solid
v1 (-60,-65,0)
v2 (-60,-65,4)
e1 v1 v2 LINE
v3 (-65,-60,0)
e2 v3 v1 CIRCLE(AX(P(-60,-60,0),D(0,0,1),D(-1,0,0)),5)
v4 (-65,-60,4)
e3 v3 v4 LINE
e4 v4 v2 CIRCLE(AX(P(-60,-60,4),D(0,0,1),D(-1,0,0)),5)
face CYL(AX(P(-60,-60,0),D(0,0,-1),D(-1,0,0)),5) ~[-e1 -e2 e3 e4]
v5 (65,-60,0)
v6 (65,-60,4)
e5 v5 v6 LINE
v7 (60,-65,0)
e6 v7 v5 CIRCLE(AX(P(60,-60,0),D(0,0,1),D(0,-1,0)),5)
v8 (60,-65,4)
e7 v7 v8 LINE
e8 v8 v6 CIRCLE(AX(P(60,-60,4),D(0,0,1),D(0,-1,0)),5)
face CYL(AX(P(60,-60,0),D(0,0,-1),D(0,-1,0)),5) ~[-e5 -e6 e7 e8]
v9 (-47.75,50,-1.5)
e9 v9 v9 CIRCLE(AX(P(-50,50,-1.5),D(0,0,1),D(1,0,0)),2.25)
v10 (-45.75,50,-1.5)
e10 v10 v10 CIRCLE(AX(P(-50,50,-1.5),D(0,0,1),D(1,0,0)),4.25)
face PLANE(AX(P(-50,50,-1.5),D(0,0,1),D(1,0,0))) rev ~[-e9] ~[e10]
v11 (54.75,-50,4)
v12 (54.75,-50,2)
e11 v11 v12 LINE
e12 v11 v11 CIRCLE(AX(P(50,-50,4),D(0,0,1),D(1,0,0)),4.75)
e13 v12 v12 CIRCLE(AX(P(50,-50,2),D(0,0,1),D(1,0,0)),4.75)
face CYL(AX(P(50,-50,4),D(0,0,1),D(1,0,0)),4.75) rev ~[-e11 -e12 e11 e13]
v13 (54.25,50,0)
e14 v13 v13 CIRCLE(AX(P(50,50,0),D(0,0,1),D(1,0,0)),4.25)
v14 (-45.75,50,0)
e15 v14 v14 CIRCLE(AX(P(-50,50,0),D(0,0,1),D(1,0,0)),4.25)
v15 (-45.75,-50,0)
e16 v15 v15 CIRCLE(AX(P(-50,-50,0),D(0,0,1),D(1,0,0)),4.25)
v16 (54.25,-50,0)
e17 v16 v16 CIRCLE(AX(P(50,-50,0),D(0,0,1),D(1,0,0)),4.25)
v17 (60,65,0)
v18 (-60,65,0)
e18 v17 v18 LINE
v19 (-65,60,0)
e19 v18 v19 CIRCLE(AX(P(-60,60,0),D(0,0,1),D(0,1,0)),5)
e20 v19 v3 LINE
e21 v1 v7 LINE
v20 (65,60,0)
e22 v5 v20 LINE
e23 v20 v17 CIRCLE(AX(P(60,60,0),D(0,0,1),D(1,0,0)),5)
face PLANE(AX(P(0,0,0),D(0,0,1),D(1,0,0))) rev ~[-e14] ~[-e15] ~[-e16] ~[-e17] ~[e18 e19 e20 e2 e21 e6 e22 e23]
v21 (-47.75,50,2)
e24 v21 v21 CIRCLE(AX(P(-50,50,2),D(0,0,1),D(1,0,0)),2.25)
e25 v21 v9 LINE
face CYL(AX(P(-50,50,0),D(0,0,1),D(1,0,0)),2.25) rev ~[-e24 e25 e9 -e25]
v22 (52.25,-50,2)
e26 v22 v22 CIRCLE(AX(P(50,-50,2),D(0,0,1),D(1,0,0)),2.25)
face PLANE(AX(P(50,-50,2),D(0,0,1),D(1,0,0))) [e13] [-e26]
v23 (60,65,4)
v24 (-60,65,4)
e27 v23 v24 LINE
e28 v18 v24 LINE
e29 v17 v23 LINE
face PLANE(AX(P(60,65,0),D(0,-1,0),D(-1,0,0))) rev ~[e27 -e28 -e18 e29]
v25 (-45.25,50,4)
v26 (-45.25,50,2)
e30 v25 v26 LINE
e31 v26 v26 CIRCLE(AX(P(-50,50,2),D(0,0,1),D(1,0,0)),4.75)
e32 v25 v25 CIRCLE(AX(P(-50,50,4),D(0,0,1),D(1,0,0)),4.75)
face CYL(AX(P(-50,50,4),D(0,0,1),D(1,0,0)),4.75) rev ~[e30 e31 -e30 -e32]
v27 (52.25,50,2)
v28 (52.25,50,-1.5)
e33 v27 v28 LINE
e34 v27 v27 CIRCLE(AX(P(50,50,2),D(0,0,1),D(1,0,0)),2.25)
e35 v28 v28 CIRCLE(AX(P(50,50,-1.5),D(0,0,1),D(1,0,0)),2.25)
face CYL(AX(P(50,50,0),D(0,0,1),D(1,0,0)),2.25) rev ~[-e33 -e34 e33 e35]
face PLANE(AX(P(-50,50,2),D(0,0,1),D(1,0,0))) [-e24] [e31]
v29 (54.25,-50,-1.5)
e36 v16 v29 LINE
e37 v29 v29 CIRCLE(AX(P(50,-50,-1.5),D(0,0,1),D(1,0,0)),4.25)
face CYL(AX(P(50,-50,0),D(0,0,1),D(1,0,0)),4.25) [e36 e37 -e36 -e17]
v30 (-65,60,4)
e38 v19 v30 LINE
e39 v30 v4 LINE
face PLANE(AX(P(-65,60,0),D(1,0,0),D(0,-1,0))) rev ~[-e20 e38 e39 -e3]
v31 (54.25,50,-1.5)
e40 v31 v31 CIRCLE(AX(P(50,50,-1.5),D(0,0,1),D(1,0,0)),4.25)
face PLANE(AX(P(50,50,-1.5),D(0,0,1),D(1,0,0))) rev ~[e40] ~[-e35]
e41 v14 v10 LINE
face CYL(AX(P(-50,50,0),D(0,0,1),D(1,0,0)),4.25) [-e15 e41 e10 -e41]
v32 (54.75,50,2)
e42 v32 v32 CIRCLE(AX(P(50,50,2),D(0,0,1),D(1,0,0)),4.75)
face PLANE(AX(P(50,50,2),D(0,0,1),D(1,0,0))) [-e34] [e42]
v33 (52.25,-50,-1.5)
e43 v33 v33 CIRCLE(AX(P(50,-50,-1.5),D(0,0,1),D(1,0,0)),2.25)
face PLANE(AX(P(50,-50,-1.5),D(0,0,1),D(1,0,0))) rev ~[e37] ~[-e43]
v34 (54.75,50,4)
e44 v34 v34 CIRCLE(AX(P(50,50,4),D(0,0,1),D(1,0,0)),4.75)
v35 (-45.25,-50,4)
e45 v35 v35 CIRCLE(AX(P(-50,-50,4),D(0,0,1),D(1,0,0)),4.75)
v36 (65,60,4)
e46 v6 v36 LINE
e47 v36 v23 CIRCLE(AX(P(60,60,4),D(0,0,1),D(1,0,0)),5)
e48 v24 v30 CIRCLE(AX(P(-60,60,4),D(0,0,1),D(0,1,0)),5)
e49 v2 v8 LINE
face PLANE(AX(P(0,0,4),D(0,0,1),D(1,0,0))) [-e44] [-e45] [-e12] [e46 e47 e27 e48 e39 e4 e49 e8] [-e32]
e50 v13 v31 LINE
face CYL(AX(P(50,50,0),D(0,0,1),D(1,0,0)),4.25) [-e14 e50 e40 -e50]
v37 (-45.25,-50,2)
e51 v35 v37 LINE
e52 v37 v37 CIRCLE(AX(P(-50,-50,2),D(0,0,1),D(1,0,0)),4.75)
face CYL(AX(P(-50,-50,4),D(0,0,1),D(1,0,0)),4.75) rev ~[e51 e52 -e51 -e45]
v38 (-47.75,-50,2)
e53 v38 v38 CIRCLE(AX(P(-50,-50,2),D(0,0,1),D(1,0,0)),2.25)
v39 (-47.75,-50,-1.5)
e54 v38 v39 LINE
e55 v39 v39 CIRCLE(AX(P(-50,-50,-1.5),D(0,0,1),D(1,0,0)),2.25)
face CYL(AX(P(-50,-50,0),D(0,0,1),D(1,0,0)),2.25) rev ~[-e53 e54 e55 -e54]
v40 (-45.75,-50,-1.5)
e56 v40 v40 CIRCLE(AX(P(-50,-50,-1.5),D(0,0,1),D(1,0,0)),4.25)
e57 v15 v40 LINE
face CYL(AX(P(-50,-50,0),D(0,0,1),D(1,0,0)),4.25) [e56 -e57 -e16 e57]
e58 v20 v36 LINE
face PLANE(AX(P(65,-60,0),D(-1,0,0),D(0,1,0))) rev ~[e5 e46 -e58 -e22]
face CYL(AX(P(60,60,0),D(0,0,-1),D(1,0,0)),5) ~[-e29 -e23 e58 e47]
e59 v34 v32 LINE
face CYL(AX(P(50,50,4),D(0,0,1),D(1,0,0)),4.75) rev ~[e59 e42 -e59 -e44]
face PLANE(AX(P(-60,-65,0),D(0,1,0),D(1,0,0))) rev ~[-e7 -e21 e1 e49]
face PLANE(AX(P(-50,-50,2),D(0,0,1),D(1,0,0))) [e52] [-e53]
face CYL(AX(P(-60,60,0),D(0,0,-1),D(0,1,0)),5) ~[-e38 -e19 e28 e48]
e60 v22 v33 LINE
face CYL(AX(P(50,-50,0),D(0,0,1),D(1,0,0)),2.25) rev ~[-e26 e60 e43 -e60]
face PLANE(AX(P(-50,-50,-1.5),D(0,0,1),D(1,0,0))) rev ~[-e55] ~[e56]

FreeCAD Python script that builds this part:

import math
import FreeCAD as App
import Part
import Sketcher

doc = App.newDocument("Part")
body = doc.addObject("PartDesign::Body", "Body")

sketch1 = body.newObject("Sketcher::SketchObject", "Sketch")
sketch1.AttachmentSupport = (doc.getObject("XY_Plane"), [""])
sketch1.MapMode = "FlatFace"
sketch1.addGeometry([
    Part.ArcOfCircle(Part.Circle(App.Vector(-60, -60, 0), App.Vector(0, 0, 1), 5), math.radians(180), math.radians(270)),
    Part.LineSegment(App.Vector(-60, -65, 0), App.Vector(60, -65, 0)),
    Part.ArcOfCircle(Part.Circle(App.Vector(60, -60, 0), App.Vector(0, 0, 1), 5), math.radians(-90), math.radians(0)),
    Part.LineSegment(App.Vector(65, -60, 0), App.Vector(65, 60, 0)),
    Part.ArcOfCircle(Part.Circle(App.Vector(60, 60, 0), App.Vector(0, 0, 1), 5), math.radians(0), math.radians(90)),
    Part.LineSegment(App.Vector(60, 65, 0), App.Vector(-60, 65, 0)),
    Part.ArcOfCircle(Part.Circle(App.Vector(-60, 60, 0), App.Vector(0, 0, 1), 5), math.radians(90), math.radians(180)),
    Part.LineSegment(App.Vector(-65, 60, 0), App.Vector(-65, -60, 0)),
    Part.Circle(App.Vector(-50, -50, 0), App.Vector(0, 0, 1), 2.25),
    Part.Circle(App.Vector(50, -50, 0), App.Vector(0, 0, 1), 2.25),
    Part.Circle(App.Vector(-50, 50, 0), App.Vector(0, 0, 1), 2.25),
    Part.Circle(App.Vector(50, 50, 0), App.Vector(0, 0, 1), 2.25),
], False)
sketch1.addConstraint([
    Sketcher.Constraint("Tangent", 0, 2, 1, 1),
    Sketcher.Constraint("Tangent", 1, 2, 2, 1),
    Sketcher.Constraint("Tangent", 2, 2, 3, 1),
    Sketcher.Constraint("Tangent", 3, 2, 4, 1),
    Sketcher.Constraint("Tangent", 4, 2, 5, 1),
    Sketcher.Constraint("Tangent", 5, 2, 6, 1),
    Sketcher.Constraint("Tangent", 6, 2, 7, 1),
    Sketcher.Constraint("Tangent", 7, 2, 0, 1),
    Sketcher.Constraint("Horizontal", 1),
    Sketcher.Constraint("Vertical", 3),
    Sketcher.Constraint("Horizontal", 5),
    Sketcher.Constraint("Vertical", 7),
    Sketcher.Constraint("Equal", 0, 2),
    Sketcher.Constraint("Equal", 2, 4),
    Sketcher.Constraint("Equal", 4, 6),
    Sketcher.Constraint("Equal", 8, 9),
    Sketcher.Constraint("Equal", 9, 10),
    Sketcher.Constraint("Equal", 10, 11),
    Sketcher.Constraint("Symmetric", 0, 3, 4, 3, -1, 1),
    Sketcher.Constraint("Symmetric", 9, 3, 10, 3, -1, 1),
    Sketcher.Constraint("Symmetric", 8, 3, 11, 3, -1, 1),
    Sketcher.Constraint("Symmetric", 8, 3, 9, 3, -2),
    Sketcher.Constraint("Equal", 5, 3),
    Sketcher.Constraint("Radius", 0, 5.0),
    Sketcher.Constraint("Diameter", 8, 4.5),
    Sketcher.Constraint("DistanceX", 1, 1, 1, 2, 120.0),
    Sketcher.Constraint("DistanceX", 8, 3, -1, 1, 50.0),
    Sketcher.Constraint("DistanceY", 8, 3, -1, 1, 50.0),
])
pad1 = body.newObject("PartDesign::Pad", "Pad")
pad1.Profile = sketch1
pad1.Length = 4

sketch2 = body.newObject("Sketcher::SketchObject", "Sketch001")
sketch2.AttachmentSupport = (doc.getObject("XY_Plane"), [""])
sketch2.MapMode = "FlatFace"
sketch2.addGeometry([
    Part.Circle(App.Vector(50, -50, 0), App.Vector(0, 0, 1), 4.25),
    Part.Circle(App.Vector(50, -50, 0), App.Vector(0, 0, 1), 2.25),
    Part.Circle(App.Vector(50, 50, 0), App.Vector(0, 0, 1), 4.25),
    Part.Circle(App.Vector(50, 50, 0), App.Vector(0, 0, 1), 2.25),
    Part.Circle(App.Vector(-50, 50, 0), App.Vector(0, 0, 1), 4.25),
    Part.Circle(App.Vector(-50, 50, 0), App.Vector(0, 0, 1), 2.25),
    Part.Circle(App.Vector(-50, -50, 0), App.Vector(0, 0, 1), 4.25),
    Part.Circle(App.Vector(-50, -50, 0), App.Vector(0, 0, 1), 2.25),
], False)
sketch2.addConstraint([
    Sketcher.Constraint("Coincident", 1, 3, 0, 3),
    Sketcher.Constraint("Coincident", 3, 3, 2, 3),
    Sketcher.Constraint("Coincident", 5, 3, 4, 3),
    Sketcher.Constraint("Coincident", 7, 3, 6, 3),
    Sketcher.Constraint("Equal", 0, 2),
    Sketcher.Constraint("Equal", 1, 3),
    Sketcher.Constraint("Equal", 2, 4),
    Sketcher.Constraint("Equal", 3, 5),
    Sketcher.Constraint("Equal", 4, 6),
    Sketcher.Constraint("Equal", 5, 7),
    Sketcher.Constraint("Symmetric", 0, 3, 4, 3, -1, 1),
    Sketcher.Constraint("Symmetric", 2, 3, 6, 3, -1, 1),
    Sketcher.Constraint("Symmetric", 2, 3, 4, 3, -2),
    Sketcher.Constraint("Diameter", 0, 8.5),
    Sketcher.Constraint("Diameter", 1, 4.5),
    Sketcher.Constraint("DistanceX", -1, 1, 0, 3, 50.0),
    Sketcher.Constraint("DistanceY", 0, 3, -1, 1, 50.0),
])
pad2 = body.newObject("PartDesign::Pad", "Pad001")
pad2.Profile = sketch2
pad2.Length = 1.5
pad2.Reversed = True

sketch3 = body.newObject("Sketcher::SketchObject", "Sketch002")
sketch3.AttachmentSupport = (doc.getObject("XY_Plane"), [""])
sketch3.MapMode = "FlatFace"
sketch3.AttachmentOffset = App.Placement(App.Vector(0, 0, 4), App.Rotation())
sketch3.addGeometry([
    Part.Circle(App.Vector(-50, 50, 0), App.Vector(0, 0, 1), 4.75),
    Part.Circle(App.Vector(-50, 50, 0), App.Vector(0, 0, 1), 2.25),
    Part.Circle(App.Vector(50, 50, 0), App.Vector(0, 0, 1), 4.75),
    Part.Circle(App.Vector(50, 50, 0), App.Vector(0, 0, 1), 2.25),
    Part.Circle(App.Vector(50, -50, 0), App.Vector(0, 0, 1), 4.75),
    Part.Circle(App.Vector(50, -50, 0), App.Vector(0, 0, 1), 2.25),
    Part.Circle(App.Vector(-50, -50, 0), App.Vector(0, 0, 1), 4.75),
    Part.Circle(App.Vector(-50, -50, 0), App.Vector(0, 0, 1), 2.25),
], False)
sketch3.addConstraint([
    Sketcher.Constraint("Coincident", 1, 3, 0, 3),
    Sketcher.Constraint("Coincident", 3, 3, 2, 3),
    Sketcher.Constraint("Coincident", 5, 3, 4, 3),
    Sketcher.Constraint("Coincident", 7, 3, 6, 3),
    Sketcher.Constraint("Equal", 0, 2),
    Sketcher.Constraint("Equal", 1, 3),
    Sketcher.Constraint("Equal", 2, 4),
    Sketcher.Constraint("Equal", 3, 5),
    Sketcher.Constraint("Equal", 4, 6),
    Sketcher.Constraint("Equal", 5, 7),
    Sketcher.Constraint("Symmetric", 0, 3, 4, 3, -1, 1),
    Sketcher.Constraint("Symmetric", 2, 3, 6, 3, -1, 1),
    Sketcher.Constraint("Symmetric", 0, 3, 2, 3, -2),
    Sketcher.Constraint("Diameter", 0, 9.5),
    Sketcher.Constraint("Diameter", 1, 4.5),
    Sketcher.Constraint("DistanceX", 0, 3, -1, 1, 50.0),
    Sketcher.Constraint("DistanceY", -1, 1, 0, 3, 50.0),
])
pocket1 = body.newObject("PartDesign::Pocket", "Pocket")
pocket1.Profile = sketch3
pocket1.Length = 2

doc.recompute()
